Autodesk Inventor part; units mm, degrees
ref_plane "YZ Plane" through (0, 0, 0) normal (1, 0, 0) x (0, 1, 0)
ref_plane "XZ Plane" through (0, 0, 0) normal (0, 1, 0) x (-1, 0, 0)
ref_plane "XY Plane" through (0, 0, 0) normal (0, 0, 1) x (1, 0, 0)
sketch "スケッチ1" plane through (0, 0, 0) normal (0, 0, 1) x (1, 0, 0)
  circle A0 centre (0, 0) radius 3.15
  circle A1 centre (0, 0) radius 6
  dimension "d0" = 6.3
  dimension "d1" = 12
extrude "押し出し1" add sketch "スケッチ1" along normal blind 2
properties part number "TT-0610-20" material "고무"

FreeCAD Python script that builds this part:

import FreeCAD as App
import Part
import Sketcher

V = App.Vector
Q = App.Units.Quantity

doc = App.newDocument("Part")
body = doc.addObject("PartDesign::Body", "Body")

# Sketch on XY plane
sketch1 = body.newObject("Sketcher::SketchObject", "Sketch")
sketch1.AttachmentSupport = (doc.getObject("XY_Plane"), [""])
sketch1.MapMode = "FlatFace"
sketch1.addGeometry(Part.Circle(V(0, 0, 0), V(0, 0, 1), 6), False)
sketch1.addGeometry(Part.Circle(V(0, 0, 0), V(0, 0, 1), 3.1), False)
sketch1.addConstraint(Sketcher.Constraint("Coincident", 0, 3, -1, 1))
sketch1.addConstraint(Sketcher.Constraint("Coincident", 1, 3, -1, 1))
sketch1.addConstraint(Sketcher.Constraint("Diameter", 0, Q("12 mm")))
sketch1.addConstraint(Sketcher.Constraint("Diameter", 1, Q("6.3 mm")))
pad1 = body.newObject("PartDesign::Pad", "Pad")
pad1.Profile = sketch1
pad1.Length = 2

doc.recompute()
